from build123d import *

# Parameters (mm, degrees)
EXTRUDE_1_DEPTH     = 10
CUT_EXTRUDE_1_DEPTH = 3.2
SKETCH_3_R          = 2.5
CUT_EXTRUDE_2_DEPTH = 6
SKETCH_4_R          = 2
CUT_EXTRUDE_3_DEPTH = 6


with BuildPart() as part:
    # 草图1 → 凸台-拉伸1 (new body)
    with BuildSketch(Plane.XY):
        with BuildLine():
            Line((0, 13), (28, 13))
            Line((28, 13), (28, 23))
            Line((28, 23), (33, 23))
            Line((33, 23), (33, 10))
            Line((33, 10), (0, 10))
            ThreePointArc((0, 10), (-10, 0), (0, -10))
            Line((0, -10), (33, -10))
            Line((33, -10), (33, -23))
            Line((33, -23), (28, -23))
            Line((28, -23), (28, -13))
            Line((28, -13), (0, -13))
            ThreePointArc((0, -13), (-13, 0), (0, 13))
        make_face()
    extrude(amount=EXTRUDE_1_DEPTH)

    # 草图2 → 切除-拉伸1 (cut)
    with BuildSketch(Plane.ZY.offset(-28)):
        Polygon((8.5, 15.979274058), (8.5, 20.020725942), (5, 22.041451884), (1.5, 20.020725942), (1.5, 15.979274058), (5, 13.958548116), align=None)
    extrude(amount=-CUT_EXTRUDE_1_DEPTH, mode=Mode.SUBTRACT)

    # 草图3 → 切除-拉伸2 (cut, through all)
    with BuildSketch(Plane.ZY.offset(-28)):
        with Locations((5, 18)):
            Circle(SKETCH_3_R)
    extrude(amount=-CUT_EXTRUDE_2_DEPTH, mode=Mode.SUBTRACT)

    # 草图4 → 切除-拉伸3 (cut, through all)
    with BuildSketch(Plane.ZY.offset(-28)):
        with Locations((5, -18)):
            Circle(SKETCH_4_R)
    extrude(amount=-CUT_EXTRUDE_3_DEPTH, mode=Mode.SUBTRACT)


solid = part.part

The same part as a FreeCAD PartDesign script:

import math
import FreeCAD as App
import Part
import Sketcher
Q = App.Units.Quantity

doc = App.newDocument("Part")
body = doc.addObject("PartDesign::Body", "Body")

sketch1 = doc.addObject("Sketcher::SketchObject", "Sketch")
body.addObject(sketch1)
sketch1.AttachmentSupport = (doc.XY_Plane, [""])
sketch1.MapMode = "FlatFace"
sketch1.addGeometry([
    Part.LineSegment(App.Vector(28, 13, 0), App.Vector(0, 13, 0)),
    Part.ArcOfCircle(Part.Circle(App.Vector(0, 0, 0), App.Vector(0, 0, 1), 13), math.radians(90), math.radians(270)),
    Part.LineSegment(App.Vector(0, -13, 0), App.Vector(28, -13, 0)),
    Part.LineSegment(App.Vector(28, -13, 0), App.Vector(28, -23, 0)),
    Part.LineSegment(App.Vector(28, -23, 0), App.Vector(33, -23, 0)),
    Part.LineSegment(App.Vector(33, -23, 0), App.Vector(33, -10, 0)),
    Part.LineSegment(App.Vector(33, -10, 0), App.Vector(0, -10, 0)),
    Part.ArcOfCircle(Part.Circle(App.Vector(0, 0, 0), App.Vector(0, 0, 1), 10), math.radians(90), math.radians(270)),
    Part.LineSegment(App.Vector(0, 10, 0), App.Vector(33, 10, 0)),
    Part.LineSegment(App.Vector(33, 10, 0), App.Vector(33, 23, 0)),
    Part.LineSegment(App.Vector(33, 23, 0), App.Vector(28, 23, 0)),
    Part.LineSegment(App.Vector(28, 23, 0), App.Vector(28, 13, 0)),
], False)
sketch1.addConstraint([
    Sketcher.Constraint("Tangent", 0, 2, 1, 1),
    Sketcher.Constraint("Tangent", 1, 2, 2, 1),
    Sketcher.Constraint("Coincident", 2, 2, 3, 1),
    Sketcher.Constraint("Coincident", 3, 2, 4, 1),
    Sketcher.Constraint("Coincident", 4, 2, 5, 1),
    Sketcher.Constraint("Coincident", 5, 2, 6, 1),
    Sketcher.Constraint("Tangent", 6, 2, 7, 2),
    Sketcher.Constraint("Tangent", 7, 1, 8, 1),
    Sketcher.Constraint("Coincident", 8, 2, 9, 1),
    Sketcher.Constraint("Coincident", 9, 2, 10, 1),
    Sketcher.Constraint("Coincident", 10, 2, 11, 1),
    Sketcher.Constraint("Coincident", 11, 2, 0, 1),
    Sketcher.Constraint("Horizontal", 0),
    Sketcher.Constraint("Horizontal", 2),
    Sketcher.Constraint("Vertical", 3),
    Sketcher.Constraint("Horizontal", 4),
    Sketcher.Constraint("Vertical", 5),
    Sketcher.Constraint("Horizontal", 6),
    Sketcher.Constraint("Horizontal", 8),
    Sketcher.Constraint("Vertical", 9),
    Sketcher.Constraint("Horizontal", 10),
    Sketcher.Constraint("Vertical", 11),
    Sketcher.Constraint("Coincident", 1, 3, -1, 1),
    Sketcher.Constraint("Coincident", 7, 3, -1, 1),
    Sketcher.Constraint("Symmetric", 4, 2, 9, 2, -1),
    Sketcher.Constraint("Vertical", 3, 2, 10, 2),
    Sketcher.Constraint("Radius", 1, Q("13 mm")),
    Sketcher.Constraint("Radius", 7, Q("10 mm")),
    Sketcher.Constraint("DistanceX", 0, 2, 0, 1, Q("28 mm")),
    Sketcher.Constraint("DistanceX", 4, 1, 4, 2, Q("5 mm")),
    Sketcher.Constraint("DistanceY", 3, 2, 3, 1, Q("10 mm")),
])
pad1 = doc.addObject("PartDesign::Pad", "Pad")
body.addObject(pad1)
pad1.Profile = sketch1
pad1.Length = 10

sketch2 = doc.addObject("Sketcher::SketchObject", "Sketch001")
body.addObject(sketch2)
sketch2.AttachmentSupport = (doc.YZ_Plane, [""])
sketch2.MapMode = "FlatFace"
sketch2.AttachmentOffset = App.Placement(App.Vector(0, 0, 28), App.Rotation())
sketch2.addGeometry([
    Part.LineSegment(App.Vector(16, 8.5, 0), App.Vector(20, 8.5, 0)),
    Part.LineSegment(App.Vector(20, 8.5, 0), App.Vector(22, 5, 0)),
    Part.LineSegment(App.Vector(22, 5, 0), App.Vector(20, 1.5, 0)),
    Part.LineSegment(App.Vector(20, 1.5, 0), App.Vector(16, 1.5, 0)),
    Part.LineSegment(App.Vector(16, 1.5, 0), App.Vector(14, 5, 0)),
    Part.LineSegment(App.Vector(14, 5, 0), App.Vector(16, 8.5, 0)),
], False)
sketch2.addConstraint([
    Sketcher.Constraint("Coincident", 0, 2, 1, 1),
    Sketcher.Constraint("Coincident", 1, 2, 2, 1),
    Sketcher.Constraint("Coincident", 2, 2, 3, 1),
    Sketcher.Constraint("Coincident", 3, 2, 4, 1),
    Sketcher.Constraint("Coincident", 4, 2, 5, 1),
    Sketcher.Constraint("Coincident", 5, 2, 0, 1),
    Sketcher.Constraint("Horizontal", 0),
    Sketcher.Constraint("Horizontal", 3),
    Sketcher.Constraint("Parallel", 1, 4),
    Sketcher.Constraint("Parallel", 2, 5),
    Sketcher.Constraint("Horizontal", 1, 2, 4, 2),
    Sketcher.Constraint("Vertical", 0, 2, 2, 2),
    Sketcher.Constraint("Vertical", 3, 2, 5, 2),
    Sketcher.Constraint("Angle", 1, Q("-60 deg")),
    Sketcher.Constraint("DistanceY", -1, 1, 1, 2, Q("5 mm")),
    Sketcher.Constraint("DistanceY", 2, 2, 0, 2, Q("7 mm")),
    Sketcher.Constraint("DistanceX", 0, 1, 0, 2, Q("4.041452 mm")),
    Sketcher.Constraint("DistanceX", -1, 1, 1, 2, Q("22.041452 mm")),
])
pocket1 = doc.addObject("PartDesign::Pocket", "Pocket")
body.addObject(pocket1)
pocket1.Profile = sketch2
pocket1.Length = 3.2
pocket1.Reversed = True

sketch3 = doc.addObject("Sketcher::SketchObject", "Sketch002")
body.addObject(sketch3)
sketch3.AttachmentSupport = (doc.YZ_Plane, [""])
sketch3.MapMode = "FlatFace"
sketch3.AttachmentOffset = App.Placement(App.Vector(0, 0, 28), App.Rotation())
sketch3.addGeometry(Part.Circle(App.Vector(18, 5, 0), App.Vector(0, 0, 1), 2.5), False)
sketch3.addConstraint([
    Sketcher.Constraint("Diameter", 0, Q("5 mm")),
    Sketcher.Constraint("DistanceX", -1, 1, 0, 3, Q("18 mm")),
    Sketcher.Constraint("DistanceY", -1, 1, 0, 3, Q("5 mm")),
])
pocket2 = doc.addObject("PartDesign::Pocket", "Pocket001")
body.addObject(pocket2)
pocket2.Profile = sketch3
pocket2.Type = "ThroughAll"
pocket2.Reversed = True

sketch4 = doc.addObject("Sketcher::SketchObject", "Sketch003")
body.addObject(sketch4)
sketch4.AttachmentSupport = (doc.YZ_Plane, [""])
sketch4.MapMode = "FlatFace"
sketch4.AttachmentOffset = App.Placement(App.Vector(0, 0, 28), App.Rotation())
sketch4.addGeometry(Part.Circle(App.Vector(-18, 5, 0), App.Vector(0, 0, 1), 2), False)
sketch4.addConstraint([
    Sketcher.Constraint("Diameter", 0, Q("4 mm")),
    Sketcher.Constraint("DistanceX", 0, 3, -1, 1, Q("18 mm")),
    Sketcher.Constraint("DistanceY", -1, 1, 0, 3, Q("5 mm")),
])
pocket3 = doc.addObject("PartDesign::Pocket", "Pocket002")
body.addObject(pocket3)
pocket3.Profile = sketch4
pocket3.Type = "ThroughAll"
pocket3.Reversed = True

doc.recompute()
